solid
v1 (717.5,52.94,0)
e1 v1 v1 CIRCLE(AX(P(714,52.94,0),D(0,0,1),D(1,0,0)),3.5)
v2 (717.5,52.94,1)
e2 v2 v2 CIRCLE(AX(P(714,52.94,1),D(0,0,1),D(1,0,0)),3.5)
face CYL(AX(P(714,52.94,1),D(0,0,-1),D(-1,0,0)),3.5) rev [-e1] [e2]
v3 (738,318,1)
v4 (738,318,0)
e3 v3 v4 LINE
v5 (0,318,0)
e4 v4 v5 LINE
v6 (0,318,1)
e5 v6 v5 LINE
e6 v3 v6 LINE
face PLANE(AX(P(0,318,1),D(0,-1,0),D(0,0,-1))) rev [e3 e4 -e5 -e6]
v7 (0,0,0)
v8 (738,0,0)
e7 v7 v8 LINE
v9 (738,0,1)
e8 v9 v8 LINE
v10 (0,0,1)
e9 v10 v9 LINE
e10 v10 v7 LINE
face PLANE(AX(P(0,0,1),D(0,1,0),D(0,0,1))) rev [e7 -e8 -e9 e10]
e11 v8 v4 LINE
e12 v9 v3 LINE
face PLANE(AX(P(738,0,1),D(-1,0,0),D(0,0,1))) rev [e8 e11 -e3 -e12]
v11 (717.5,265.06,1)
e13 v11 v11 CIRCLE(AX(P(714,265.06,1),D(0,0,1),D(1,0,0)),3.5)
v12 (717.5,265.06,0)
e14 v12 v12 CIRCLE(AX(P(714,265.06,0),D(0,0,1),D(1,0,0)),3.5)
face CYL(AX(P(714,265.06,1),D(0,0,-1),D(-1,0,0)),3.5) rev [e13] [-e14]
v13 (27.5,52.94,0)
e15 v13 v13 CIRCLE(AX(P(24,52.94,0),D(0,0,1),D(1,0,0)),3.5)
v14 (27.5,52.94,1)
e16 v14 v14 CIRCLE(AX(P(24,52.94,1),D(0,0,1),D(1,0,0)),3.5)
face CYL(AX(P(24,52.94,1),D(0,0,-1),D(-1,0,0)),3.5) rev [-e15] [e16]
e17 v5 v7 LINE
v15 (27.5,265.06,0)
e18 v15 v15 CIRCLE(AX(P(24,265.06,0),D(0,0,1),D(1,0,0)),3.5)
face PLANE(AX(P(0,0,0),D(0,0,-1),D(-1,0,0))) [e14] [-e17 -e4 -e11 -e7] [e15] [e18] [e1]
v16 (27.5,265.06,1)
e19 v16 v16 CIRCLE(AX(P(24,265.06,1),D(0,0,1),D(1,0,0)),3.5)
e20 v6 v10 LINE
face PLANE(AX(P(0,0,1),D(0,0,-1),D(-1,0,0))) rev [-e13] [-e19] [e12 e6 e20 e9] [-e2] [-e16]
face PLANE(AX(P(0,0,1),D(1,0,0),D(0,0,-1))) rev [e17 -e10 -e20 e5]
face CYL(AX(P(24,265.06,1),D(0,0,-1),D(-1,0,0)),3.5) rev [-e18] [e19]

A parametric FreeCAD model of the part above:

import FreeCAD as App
import Part
import Sketcher
from FreeCAD import Vector

doc = App.newDocument("Part")
body = doc.addObject("PartDesign::Body", "Body")

# Sketch on XY plane
sketch1 = doc.addObject("Sketcher::SketchObject", "Sketch")
body.addObject(sketch1)
sketch1.AttachmentSupport = (doc.XY_Plane, [""])
sketch1.MapMode = "FlatFace"
sketch1.addGeometry(Part.LineSegment(Vector(0, 318, 0), Vector(0, 0, 0)), False)
sketch1.addGeometry(Part.LineSegment(Vector(0, 0, 0), Vector(738, 0, 0)), False)
sketch1.addGeometry(Part.LineSegment(Vector(738, 0, 0), Vector(738, 318, 0)), False)
sketch1.addGeometry(Part.LineSegment(Vector(738, 318, 0), Vector(0, 318, 0)), False)
sketch1.addGeometry(Part.Circle(Vector(24, 52.9, 0), Vector(0, 0, 1), 3.5), False)
sketch1.addGeometry(Part.Circle(Vector(714, 52.9, 0), Vector(0, 0, 1), 3.5), False)
sketch1.addGeometry(Part.Circle(Vector(24, 265.1, 0), Vector(0, 0, 1), 3.5), False)
sketch1.addGeometry(Part.Circle(Vector(714, 265.1, 0), Vector(0, 0, 1), 3.5), False)
sketch1.addConstraint(Sketcher.Constraint("Coincident", 0, 2, 1, 1))
sketch1.addConstraint(Sketcher.Constraint("Coincident", 1, 2, 2, 1))
sketch1.addConstraint(Sketcher.Constraint("Coincident", 2, 2, 3, 1))
sketch1.addConstraint(Sketcher.Constraint("Coincident", 3, 2, 0, 1))
sketch1.addConstraint(Sketcher.Constraint("Vertical", 0))
sketch1.addConstraint(Sketcher.Constraint("Horizontal", 1))
sketch1.addConstraint(Sketcher.Constraint("Vertical", 2))
sketch1.addConstraint(Sketcher.Constraint("Horizontal", 3))
sketch1.addConstraint(Sketcher.Constraint("Coincident", 0, 2, -1, 1))
sketch1.addConstraint(Sketcher.Constraint("Equal", 4, 5))
sketch1.addConstraint(Sketcher.Constraint("Equal", 5, 6))
sketch1.addConstraint(Sketcher.Constraint("Equal", 6, 7))
sketch1.addConstraint(Sketcher.Constraint("Horizontal", 4, 3, 5, 3))
sketch1.addConstraint(Sketcher.Constraint("Horizontal", 6, 3, 7, 3))
sketch1.addConstraint(Sketcher.Constraint("Vertical", 4, 3, 6, 3))
sketch1.addConstraint(Sketcher.Constraint("Vertical", 5, 3, 7, 3))
sketch1.addConstraint(Sketcher.Constraint("Diameter", 4, 7.0))
sketch1.addConstraint(Sketcher.Constraint("DistanceX", 1, 1, 1, 2, 738.0))
sketch1.addConstraint(Sketcher.Constraint("DistanceY", 0, 2, 0, 1, 318.0))
sketch1.addConstraint(Sketcher.Constraint("DistanceX", -1, 1, 4, 3, 24.0))
sketch1.addConstraint(Sketcher.Constraint("DistanceX", -1, 1, 5, 3, 714.0))
sketch1.addConstraint(Sketcher.Constraint("DistanceY", -1, 1, 4, 3, 52.94))
sketch1.addConstraint(Sketcher.Constraint("DistanceY", -1, 1, 6, 3, 265.06))
pad1 = doc.addObject("PartDesign::Pad", "Pad")
body.addObject(pad1)
pad1.Profile = sketch1
pad1.Length = 1

doc.recompute()
